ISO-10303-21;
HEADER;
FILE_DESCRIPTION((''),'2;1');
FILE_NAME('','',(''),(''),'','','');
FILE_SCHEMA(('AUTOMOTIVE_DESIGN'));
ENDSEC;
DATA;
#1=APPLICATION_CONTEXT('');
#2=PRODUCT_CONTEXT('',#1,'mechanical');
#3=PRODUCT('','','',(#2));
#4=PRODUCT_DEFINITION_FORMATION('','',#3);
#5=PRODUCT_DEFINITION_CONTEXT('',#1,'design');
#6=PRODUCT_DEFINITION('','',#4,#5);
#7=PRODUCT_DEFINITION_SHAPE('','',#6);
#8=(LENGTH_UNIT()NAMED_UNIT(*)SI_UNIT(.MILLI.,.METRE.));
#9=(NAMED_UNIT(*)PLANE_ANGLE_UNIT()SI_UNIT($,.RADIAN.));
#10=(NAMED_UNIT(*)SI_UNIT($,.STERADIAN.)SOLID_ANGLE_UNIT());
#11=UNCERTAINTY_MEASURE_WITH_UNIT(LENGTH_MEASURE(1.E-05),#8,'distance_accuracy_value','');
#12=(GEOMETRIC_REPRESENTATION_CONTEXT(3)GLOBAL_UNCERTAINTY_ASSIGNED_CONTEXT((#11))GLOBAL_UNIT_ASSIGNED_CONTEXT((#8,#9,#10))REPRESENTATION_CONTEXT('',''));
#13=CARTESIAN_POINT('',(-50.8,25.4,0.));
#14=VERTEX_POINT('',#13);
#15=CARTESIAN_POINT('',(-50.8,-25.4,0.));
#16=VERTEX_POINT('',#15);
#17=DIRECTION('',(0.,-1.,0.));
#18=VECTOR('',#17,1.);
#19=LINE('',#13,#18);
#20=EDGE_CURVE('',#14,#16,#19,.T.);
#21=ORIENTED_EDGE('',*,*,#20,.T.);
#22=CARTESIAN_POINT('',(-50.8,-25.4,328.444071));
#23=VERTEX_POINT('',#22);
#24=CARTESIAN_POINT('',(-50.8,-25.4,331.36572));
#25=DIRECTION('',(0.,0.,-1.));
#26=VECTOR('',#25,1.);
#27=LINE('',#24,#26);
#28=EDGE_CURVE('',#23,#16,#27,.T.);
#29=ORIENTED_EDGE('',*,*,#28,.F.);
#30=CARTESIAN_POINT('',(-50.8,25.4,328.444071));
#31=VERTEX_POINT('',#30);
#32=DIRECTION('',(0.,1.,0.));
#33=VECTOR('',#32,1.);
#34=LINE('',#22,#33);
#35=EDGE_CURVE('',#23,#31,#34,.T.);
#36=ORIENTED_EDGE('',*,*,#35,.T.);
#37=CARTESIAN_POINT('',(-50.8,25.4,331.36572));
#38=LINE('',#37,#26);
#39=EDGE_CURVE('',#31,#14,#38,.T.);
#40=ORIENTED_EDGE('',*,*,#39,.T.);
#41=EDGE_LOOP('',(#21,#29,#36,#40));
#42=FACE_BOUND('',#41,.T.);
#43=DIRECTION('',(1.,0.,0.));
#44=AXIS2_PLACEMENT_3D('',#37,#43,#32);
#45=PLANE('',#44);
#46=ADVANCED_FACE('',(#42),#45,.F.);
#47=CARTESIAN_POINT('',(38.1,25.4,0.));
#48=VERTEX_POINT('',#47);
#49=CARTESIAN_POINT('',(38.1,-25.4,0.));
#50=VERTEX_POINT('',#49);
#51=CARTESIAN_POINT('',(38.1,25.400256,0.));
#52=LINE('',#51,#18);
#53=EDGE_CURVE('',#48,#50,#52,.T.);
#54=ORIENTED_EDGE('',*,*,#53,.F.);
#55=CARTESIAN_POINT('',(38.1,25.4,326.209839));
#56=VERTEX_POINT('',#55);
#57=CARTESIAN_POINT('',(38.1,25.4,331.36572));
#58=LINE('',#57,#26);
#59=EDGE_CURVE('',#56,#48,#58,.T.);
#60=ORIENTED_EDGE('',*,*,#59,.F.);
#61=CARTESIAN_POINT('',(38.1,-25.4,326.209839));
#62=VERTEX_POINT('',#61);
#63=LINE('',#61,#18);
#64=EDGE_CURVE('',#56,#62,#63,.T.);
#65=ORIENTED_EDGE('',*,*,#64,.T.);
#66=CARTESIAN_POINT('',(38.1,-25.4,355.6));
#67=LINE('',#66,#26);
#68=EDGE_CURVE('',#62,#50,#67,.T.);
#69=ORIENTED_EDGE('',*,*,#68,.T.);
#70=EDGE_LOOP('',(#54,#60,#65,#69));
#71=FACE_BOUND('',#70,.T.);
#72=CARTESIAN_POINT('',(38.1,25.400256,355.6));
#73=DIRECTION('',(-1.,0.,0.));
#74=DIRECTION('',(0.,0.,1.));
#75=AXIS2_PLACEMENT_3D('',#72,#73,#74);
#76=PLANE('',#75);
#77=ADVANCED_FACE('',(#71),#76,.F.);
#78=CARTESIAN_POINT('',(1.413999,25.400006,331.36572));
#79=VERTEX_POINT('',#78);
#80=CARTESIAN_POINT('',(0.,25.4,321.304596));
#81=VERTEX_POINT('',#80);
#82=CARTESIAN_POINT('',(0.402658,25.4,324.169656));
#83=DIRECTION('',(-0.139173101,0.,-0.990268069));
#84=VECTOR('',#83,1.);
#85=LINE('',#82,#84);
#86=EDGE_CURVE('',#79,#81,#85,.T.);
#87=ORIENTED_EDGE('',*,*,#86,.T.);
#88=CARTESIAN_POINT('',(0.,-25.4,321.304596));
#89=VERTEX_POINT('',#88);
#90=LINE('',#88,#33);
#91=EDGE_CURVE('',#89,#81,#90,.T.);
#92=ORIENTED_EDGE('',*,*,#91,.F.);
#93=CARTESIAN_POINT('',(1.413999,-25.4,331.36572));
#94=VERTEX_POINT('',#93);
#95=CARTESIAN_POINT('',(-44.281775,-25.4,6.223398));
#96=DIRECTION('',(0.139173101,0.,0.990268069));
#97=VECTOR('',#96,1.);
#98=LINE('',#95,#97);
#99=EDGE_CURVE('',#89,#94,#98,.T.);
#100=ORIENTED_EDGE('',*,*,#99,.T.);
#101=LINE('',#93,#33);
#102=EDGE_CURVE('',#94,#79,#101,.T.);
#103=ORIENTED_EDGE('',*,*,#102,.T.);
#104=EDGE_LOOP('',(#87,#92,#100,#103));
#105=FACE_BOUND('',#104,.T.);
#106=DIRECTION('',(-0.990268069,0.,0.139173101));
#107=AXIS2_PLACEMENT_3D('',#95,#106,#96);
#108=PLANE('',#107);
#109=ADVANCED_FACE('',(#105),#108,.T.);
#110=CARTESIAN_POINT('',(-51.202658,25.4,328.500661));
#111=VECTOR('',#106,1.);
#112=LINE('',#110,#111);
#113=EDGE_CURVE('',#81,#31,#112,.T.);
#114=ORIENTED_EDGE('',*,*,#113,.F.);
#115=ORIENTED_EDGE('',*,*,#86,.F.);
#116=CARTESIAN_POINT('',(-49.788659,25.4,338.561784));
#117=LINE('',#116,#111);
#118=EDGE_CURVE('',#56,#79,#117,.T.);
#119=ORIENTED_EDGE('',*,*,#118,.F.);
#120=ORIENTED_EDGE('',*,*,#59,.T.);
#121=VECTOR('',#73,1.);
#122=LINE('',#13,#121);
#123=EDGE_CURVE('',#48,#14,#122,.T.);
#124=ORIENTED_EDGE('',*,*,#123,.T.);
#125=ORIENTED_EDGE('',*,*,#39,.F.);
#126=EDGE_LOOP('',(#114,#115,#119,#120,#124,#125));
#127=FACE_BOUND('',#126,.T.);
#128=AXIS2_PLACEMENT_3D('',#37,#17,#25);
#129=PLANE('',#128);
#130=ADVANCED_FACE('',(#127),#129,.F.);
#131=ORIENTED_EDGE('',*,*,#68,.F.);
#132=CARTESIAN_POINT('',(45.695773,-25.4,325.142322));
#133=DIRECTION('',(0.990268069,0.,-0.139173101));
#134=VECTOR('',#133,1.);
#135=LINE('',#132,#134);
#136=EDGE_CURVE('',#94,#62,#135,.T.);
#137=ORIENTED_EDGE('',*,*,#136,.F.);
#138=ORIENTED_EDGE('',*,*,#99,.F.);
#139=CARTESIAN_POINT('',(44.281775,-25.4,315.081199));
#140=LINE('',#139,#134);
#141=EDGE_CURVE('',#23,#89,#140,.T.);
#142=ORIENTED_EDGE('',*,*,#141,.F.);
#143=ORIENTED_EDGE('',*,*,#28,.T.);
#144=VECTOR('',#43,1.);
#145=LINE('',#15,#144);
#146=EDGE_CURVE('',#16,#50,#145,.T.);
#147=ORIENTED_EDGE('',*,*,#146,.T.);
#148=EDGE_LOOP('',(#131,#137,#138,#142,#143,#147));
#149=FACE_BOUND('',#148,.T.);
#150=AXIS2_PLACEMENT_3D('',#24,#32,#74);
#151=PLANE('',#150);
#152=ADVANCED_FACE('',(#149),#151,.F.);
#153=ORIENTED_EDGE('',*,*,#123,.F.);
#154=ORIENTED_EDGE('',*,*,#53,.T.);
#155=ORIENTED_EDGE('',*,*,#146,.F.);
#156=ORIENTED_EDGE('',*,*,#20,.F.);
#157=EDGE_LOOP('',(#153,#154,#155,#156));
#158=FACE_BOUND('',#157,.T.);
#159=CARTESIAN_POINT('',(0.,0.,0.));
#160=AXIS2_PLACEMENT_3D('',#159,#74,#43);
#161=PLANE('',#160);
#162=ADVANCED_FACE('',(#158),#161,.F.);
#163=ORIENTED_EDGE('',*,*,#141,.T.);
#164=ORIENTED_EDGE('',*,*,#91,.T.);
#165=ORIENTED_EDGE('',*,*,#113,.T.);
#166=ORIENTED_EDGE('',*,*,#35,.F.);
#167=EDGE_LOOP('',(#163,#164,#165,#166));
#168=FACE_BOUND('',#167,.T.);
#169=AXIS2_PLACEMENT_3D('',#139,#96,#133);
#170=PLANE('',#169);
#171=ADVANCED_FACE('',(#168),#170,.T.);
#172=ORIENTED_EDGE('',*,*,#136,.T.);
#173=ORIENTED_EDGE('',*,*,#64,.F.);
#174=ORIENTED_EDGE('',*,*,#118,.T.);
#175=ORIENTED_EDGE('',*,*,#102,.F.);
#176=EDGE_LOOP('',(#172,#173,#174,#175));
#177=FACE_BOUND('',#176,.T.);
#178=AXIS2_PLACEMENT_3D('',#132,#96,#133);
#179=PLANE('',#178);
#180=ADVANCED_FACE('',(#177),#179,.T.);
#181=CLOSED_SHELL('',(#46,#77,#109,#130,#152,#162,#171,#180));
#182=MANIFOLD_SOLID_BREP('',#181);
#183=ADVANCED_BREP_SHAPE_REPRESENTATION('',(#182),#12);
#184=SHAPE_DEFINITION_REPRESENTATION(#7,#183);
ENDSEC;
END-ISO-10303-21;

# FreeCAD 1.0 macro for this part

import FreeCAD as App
import Part
import Sketcher

V = App.Vector
Q = App.Units.Quantity

doc = App.newDocument("Part")
params = doc.addObject("Spreadsheet::Sheet", "Params")
for row, (alias, value) in enumerate([
    ("sketch1_width", "4 in"),
    ("sketch1_height", "2 in"),
    ("pad1_length", "331.36572 mm"),
    ("sketch2_length", "0.4 in"),
    ("sketch3_height", "14 in"),
    ("sketch3_width", "0.5 in"),
], start=1):
    params.set(f"A{row}", alias)
    params.set(f"B{row}", "=" + value)
    params.setAlias(f"B{row}", alias)

body = doc.addObject("PartDesign::Body", "Body")

sketch1 = body.newObject("Sketcher::SketchObject", "Sketch")
sketch1.AttachmentSupport = (doc.getObject("XY_Plane"), [""])
sketch1.MapMode = "FlatFace"
sketch1.addGeometry([
    Part.LineSegment(V(-51, 25, 0), V(-51, -25, 0)),
    Part.LineSegment(V(-51, -25, 0), V(51, -25, 0)),
    Part.LineSegment(V(51, -25, 0), V(51, 25, 0)),
    Part.LineSegment(V(51, 25, 0), V(-51, 25, 0)),
], False)
sketch1.addConstraint([
    Sketcher.Constraint("Coincident", 0, 2, 1, 1),
    Sketcher.Constraint("Coincident", 1, 2, 2, 1),
    Sketcher.Constraint("Coincident", 2, 2, 3, 1),
    Sketcher.Constraint("Coincident", 3, 2, 0, 1),
    Sketcher.Constraint("Vertical", 0),
    Sketcher.Constraint("Horizontal", 1),
    Sketcher.Constraint("Vertical", 2),
    Sketcher.Constraint("Horizontal", 3),
    Sketcher.Constraint("Symmetric", 0, 2, 2, 2, -1, 1),
    Sketcher.Constraint("DistanceX", 1, 1, 1, 2, Q("4 in")),
    Sketcher.Constraint("DistanceY", 0, 2, 0, 1, Q("2 in")),
])
sketch1.setExpression("Constraints[9]", "Params.sketch1_width")
sketch1.setExpression("Constraints[10]", "Params.sketch1_height")
pad1 = body.newObject("PartDesign::Pad", "Pad")
pad1.Profile = sketch1
pad1.setExpression("Length", "Params.pad1_length")

sketch2 = body.newObject("Sketcher::SketchObject", "Sketch001")
sketch2.AttachmentSupport = (doc.getObject("XZ_Plane"), [""])
sketch2.MapMode = "FlatFace"
sketch2.AttachmentOffset = App.Placement(V(0, 0, -1 * 25.4), App.Rotation())
sketch2.addGeometry([
    Part.LineSegment(V(50.8, 324.4, 0), V(1.4, 331.4, 0)),
    Part.LineSegment(V(1.4, 331.4, 0), V(50.8, 331.4, 0)),
    Part.LineSegment(V(50.8, 331.4, 0), V(50.8, 324.4, 0)),
    Part.LineSegment(V(0, 321.3, 0), V(-50.8, 328.4, 0)),
    Part.LineSegment(V(-50.8, 328.4, 0), V(-50.8, 331.4, 0)),
    Part.LineSegment(V(-50.8, 331.4, 0), V(1.4, 331.4, 0)),
    Part.LineSegment(V(1.4, 331.4, 0), V(0, 321.3, 0)),
], False)
sketch2.addConstraint([
    Sketcher.Constraint("Coincident", 0, 2, 1, 1),
    Sketcher.Constraint("Coincident", 1, 2, 2, 1),
    Sketcher.Constraint("Coincident", 2, 2, 0, 1),
    Sketcher.Constraint("Coincident", 3, 2, 4, 1),
    Sketcher.Constraint("Coincident", 4, 2, 5, 1),
    Sketcher.Constraint("Coincident", 5, 2, 6, 1),
    Sketcher.Constraint("Coincident", 6, 2, 3, 1),
    Sketcher.Constraint("Horizontal", 1),
    Sketcher.Constraint("Vertical", 2),
    Sketcher.Constraint("Vertical", 4),
    Sketcher.Constraint("Horizontal", 5),
    Sketcher.Constraint("Coincident", 5, 2, 0, 2),
    Sketcher.Constraint("PointOnObject", 6, 2, -2),
    Sketcher.Constraint("Parallel", 0, 3),
    Sketcher.Constraint("Perpendicular", 3, 6),
    Sketcher.Constraint("DistanceX", -1, 1, 1, 2, Q("2 in")),
    Sketcher.Constraint("DistanceX", 3, 2, -1, 1, Q("2 in")),
    Sketcher.Constraint("Angle", 0, Q("172 deg")),
    Sketcher.Constraint("Distance", 6, Q("0.4 in")),
    Sketcher.Constraint("DistanceY", -1, 1, 0, 2, Q("331.36572 mm")),
])
sketch2.setExpression("Constraints[18]", "Params.sketch2_length")
pocket1 = body.newObject("PartDesign::Pocket", "Pocket")
pocket1.Profile = sketch2
pocket1.Type = "ThroughAll"
pocket1.Midplane = True

sketch3 = body.newObject("Sketcher::SketchObject", "Sketch002")
sketch3.AttachmentSupport = (doc.getObject("XZ_Plane"), [""])
sketch3.MapMode = "FlatFace"
sketch3.AttachmentOffset = App.Placement(V(0, 0, 1 * 25.4), App.Rotation())
sketch3.addGeometry([
    Part.LineSegment(V(38, 356, 0), V(38, 0, 0)),
    Part.LineSegment(V(38, 0, 0), V(51, 0, 0)),
    Part.LineSegment(V(51, 0, 0), V(51, 356, 0)),
    Part.LineSegment(V(51, 356, 0), V(38, 356, 0)),
], False)
sketch3.addConstraint([
    Sketcher.Constraint("Coincident", 0, 2, 1, 1),
    Sketcher.Constraint("Coincident", 1, 2, 2, 1),
    Sketcher.Constraint("Coincident", 2, 2, 3, 1),
    Sketcher.Constraint("Coincident", 3, 2, 0, 1),
    Sketcher.Constraint("Vertical", 0),
    Sketcher.Constraint("Horizontal", 1),
    Sketcher.Constraint("Vertical", 2),
    Sketcher.Constraint("Horizontal", 3),
    Sketcher.Constraint("PointOnObject", 0, 2, -1),
    Sketcher.Constraint("DistanceY", 0, 2, 0, 1, Q("14 in")),
    Sketcher.Constraint("DistanceX", 1, 1, 1, 2, Q("0.5 in")),
    Sketcher.Constraint("DistanceX", -1, 1, 1, 2, Q("2 in")),
])
sketch3.setExpression("Constraints[9]", "Params.sketch3_height")
sketch3.setExpression("Constraints[10]", "Params.sketch3_width")
pocket2 = body.newObject("PartDesign::Pocket", "Pocket001")
pocket2.Profile = sketch3
pocket2.Type = "ThroughAll"
pocket2.Midplane = True

doc.recompute()
